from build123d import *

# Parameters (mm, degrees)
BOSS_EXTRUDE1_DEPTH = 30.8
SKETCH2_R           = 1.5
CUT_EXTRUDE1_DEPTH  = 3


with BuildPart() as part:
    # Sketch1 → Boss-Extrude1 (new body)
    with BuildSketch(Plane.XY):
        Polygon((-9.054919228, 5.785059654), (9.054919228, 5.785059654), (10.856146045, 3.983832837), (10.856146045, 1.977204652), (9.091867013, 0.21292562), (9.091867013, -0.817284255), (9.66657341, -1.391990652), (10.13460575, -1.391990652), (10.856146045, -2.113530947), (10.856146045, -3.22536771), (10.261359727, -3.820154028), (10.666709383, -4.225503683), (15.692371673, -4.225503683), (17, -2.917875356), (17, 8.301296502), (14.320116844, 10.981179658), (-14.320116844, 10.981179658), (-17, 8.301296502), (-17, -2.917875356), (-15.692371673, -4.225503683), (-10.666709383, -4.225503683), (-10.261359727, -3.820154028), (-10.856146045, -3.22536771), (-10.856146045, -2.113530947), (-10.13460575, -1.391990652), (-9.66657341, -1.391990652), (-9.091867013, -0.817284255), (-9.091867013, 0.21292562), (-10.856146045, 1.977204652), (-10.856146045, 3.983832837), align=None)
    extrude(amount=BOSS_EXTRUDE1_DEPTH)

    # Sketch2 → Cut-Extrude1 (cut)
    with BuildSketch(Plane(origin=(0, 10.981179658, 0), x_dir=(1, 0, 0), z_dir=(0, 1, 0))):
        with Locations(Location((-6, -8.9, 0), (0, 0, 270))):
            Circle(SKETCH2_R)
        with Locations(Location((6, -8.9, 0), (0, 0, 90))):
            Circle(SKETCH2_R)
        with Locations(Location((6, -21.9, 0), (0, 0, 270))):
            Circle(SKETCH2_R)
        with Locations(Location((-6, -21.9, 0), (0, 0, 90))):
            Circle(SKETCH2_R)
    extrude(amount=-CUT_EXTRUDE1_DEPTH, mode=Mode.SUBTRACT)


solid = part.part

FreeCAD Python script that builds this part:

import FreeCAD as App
import Part
import Sketcher

V = App.Vector

doc = App.newDocument("Part")
body = doc.addObject("PartDesign::Body", "Body")

# Sketch on XY plane
sketch1 = body.newObject("Sketcher::SketchObject", "Sketch")
sketch1.AttachmentSupport = (doc.getObject("XY_Plane"), [""])
sketch1.MapMode = "FlatFace"
sketch1.addGeometry([
    Part.LineSegment(V(-9.054919, 5.78506, 0), V(9.054919, 5.78506, 0)),  # 0
    Part.LineSegment(V(9.054919, 5.78506, 0), V(10.856146, 3.983833, 0)),  # 1
    Part.LineSegment(V(10.856146, 3.983833, 0), V(10.856146, 1.977205, 0)),  # 2
    Part.LineSegment(V(10.856146, 1.977205, 0), V(9.091867, 0.212926, 0)),  # 3
    Part.LineSegment(V(9.091867, 0.212926, 0), V(9.091867, -0.817284, 0)),  # 4
    Part.LineSegment(V(9.091867, -0.817284, 0), V(9.666573, -1.391991, 0)),  # 5
    Part.LineSegment(V(9.666573, -1.391991, 0), V(10.134606, -1.391991, 0)),  # 6
    Part.LineSegment(V(10.134606, -1.391991, 0), V(10.856146, -2.113531, 0)),  # 7
    Part.LineSegment(V(10.856146, -2.113531, 0), V(10.856146, -3.225368, 0)),  # 8
    Part.LineSegment(V(10.856146, -3.225368, 0), V(10.26136, -3.820154, 0)),  # 9
    Part.LineSegment(V(10.26136, -3.820154, 0), V(10.666709, -4.225504, 0)),  # 10
    Part.LineSegment(V(10.666709, -4.225504, 0), V(15.692372, -4.225504, 0)),  # 11
    Part.LineSegment(V(15.692372, -4.225504, 0), V(17, -2.917875, 0)),  # 12
    Part.LineSegment(V(17, -2.917875, 0), V(17, 8.301297, 0)),  # 13
    Part.LineSegment(V(17, 8.301297, 0), V(14.320117, 10.98118, 0)),  # 14
    Part.LineSegment(V(14.320117, 10.98118, 0), V(-14.320117, 10.98118, 0)),  # 15
    Part.LineSegment(V(-14.320117, 10.98118, 0), V(-17, 8.301297, 0)),  # 16
    Part.LineSegment(V(-17, 8.301297, 0), V(-17, -2.917875, 0)),  # 17
    Part.LineSegment(V(-17, -2.917875, 0), V(-15.692372, -4.225504, 0)),  # 18
    Part.LineSegment(V(-15.692372, -4.225504, 0), V(-10.666709, -4.225504, 0)),  # 19
    Part.LineSegment(V(-10.666709, -4.225504, 0), V(-10.26136, -3.820154, 0)),  # 20
    Part.LineSegment(V(-10.26136, -3.820154, 0), V(-10.856146, -3.225368, 0)),  # 21
    Part.LineSegment(V(-10.856146, -3.225368, 0), V(-10.856146, -2.113531, 0)),  # 22
    Part.LineSegment(V(-10.856146, -2.113531, 0), V(-10.134606, -1.391991, 0)),  # 23
    Part.LineSegment(V(-10.134606, -1.391991, 0), V(-9.666573, -1.391991, 0)),  # 24
    Part.LineSegment(V(-9.666573, -1.391991, 0), V(-9.091867, -0.817284, 0)),  # 25
    Part.LineSegment(V(-9.091867, -0.817284, 0), V(-9.091867, 0.212926, 0)),  # 26
    Part.LineSegment(V(-9.091867, 0.212926, 0), V(-10.856146, 1.977205, 0)),  # 27
    Part.LineSegment(V(-10.856146, 1.977205, 0), V(-10.856146, 3.983833, 0)),  # 28
    Part.LineSegment(V(-10.856146, 3.983833, 0), V(-9.054919, 5.78506, 0)),  # 29
], False)
sketch1.addConstraint([
    Sketcher.Constraint("Coincident", 0, 2, 1, 1),
    Sketcher.Constraint("Coincident", 1, 2, 2, 1),
    Sketcher.Constraint("Coincident", 2, 2, 3, 1),
    Sketcher.Constraint("Coincident", 3, 2, 4, 1),
    Sketcher.Constraint("Coincident", 4, 2, 5, 1),
    Sketcher.Constraint("Coincident", 5, 2, 6, 1),
    Sketcher.Constraint("Coincident", 6, 2, 7, 1),
    Sketcher.Constraint("Coincident", 7, 2, 8, 1),
    Sketcher.Constraint("Coincident", 8, 2, 9, 1),
    Sketcher.Constraint("Coincident", 9, 2, 10, 1),
    Sketcher.Constraint("Coincident", 10, 2, 11, 1),
    Sketcher.Constraint("Coincident", 11, 2, 12, 1),
    Sketcher.Constraint("Coincident", 12, 2, 13, 1),
    Sketcher.Constraint("Coincident", 13, 2, 14, 1),
    Sketcher.Constraint("Coincident", 14, 2, 15, 1),
    Sketcher.Constraint("Coincident", 15, 2, 16, 1),
    Sketcher.Constraint("Coincident", 16, 2, 17, 1),
    Sketcher.Constraint("Coincident", 17, 2, 18, 1),
    Sketcher.Constraint("Coincident", 18, 2, 19, 1),
    Sketcher.Constraint("Coincident", 19, 2, 20, 1),
    Sketcher.Constraint("Coincident", 20, 2, 21, 1),
    Sketcher.Constraint("Coincident", 21, 2, 22, 1),
    Sketcher.Constraint("Coincident", 22, 2, 23, 1),
    Sketcher.Constraint("Coincident", 23, 2, 24, 1),
    Sketcher.Constraint("Coincident", 24, 2, 25, 1),
    Sketcher.Constraint("Coincident", 25, 2, 26, 1),
    Sketcher.Constraint("Coincident", 26, 2, 27, 1),
    Sketcher.Constraint("Coincident", 27, 2, 28, 1),
    Sketcher.Constraint("Coincident", 28, 2, 29, 1),
    Sketcher.Constraint("Coincident", 29, 2, 0, 1),
    Sketcher.Constraint("Horizontal", 0),
    Sketcher.Constraint("Vertical", 2),
    Sketcher.Constraint("Vertical", 4),
    Sketcher.Constraint("Horizontal", 6),
    Sketcher.Constraint("Vertical", 8),
    Sketcher.Constraint("Horizontal", 11),
    Sketcher.Constraint("Vertical", 13),
    Sketcher.Constraint("Horizontal", 15),
    Sketcher.Constraint("Vertical", 17),
    Sketcher.Constraint("Horizontal", 19),
    Sketcher.Constraint("Vertical", 22),
    Sketcher.Constraint("Horizontal", 24),
    Sketcher.Constraint("Vertical", 26),
    Sketcher.Constraint("Vertical", 28),
    Sketcher.Constraint("Symmetric", 13, 2, 16, 2, -2),
    Sketcher.Constraint("Symmetric", 11, 2, 18, 2, -2),
    Sketcher.Constraint("Symmetric", 9, 2, 20, 2, -2),
    Sketcher.Constraint("Symmetric", 8, 2, 21, 2, -2),
    Sketcher.Constraint("Symmetric", 6, 2, 23, 2, -2),
    Sketcher.Constraint("Symmetric", 4, 2, 25, 2, -2),
    Sketcher.Constraint("Symmetric", 2, 2, 27, 2, -2),
    Sketcher.Constraint("Perpendicular", 1, 3),
    Sketcher.Constraint("Perpendicular", 3, 5),
    Sketcher.Constraint("Parallel", 5, 7),
    Sketcher.Constraint("Perpendicular", 7, 9),
    Sketcher.Constraint("Perpendicular", 9, 10),
    Sketcher.Constraint("Perpendicular", 10, 12),
    Sketcher.Constraint("Perpendicular", 12, 14),
    Sketcher.Constraint("Perpendicular", 14, 16),
    Sketcher.Constraint("Perpendicular", 16, 18),
    Sketcher.Constraint("Perpendicular", 18, 20),
    Sketcher.Constraint("Perpendicular", 20, 21),
    Sketcher.Constraint("Perpendicular", 21, 23),
    Sketcher.Constraint("Parallel", 23, 25),
    Sketcher.Constraint("Perpendicular", 25, 27),
    Sketcher.Constraint("Perpendicular", 27, 29),
    Sketcher.Constraint("Horizontal", 1, 2, 28, 2),
    Sketcher.Constraint("Vertical", 2, 2, 7, 2),
    Sketcher.Constraint("DistanceX", -1, 1, 12, 2, 17.0),
    Sketcher.Constraint("DistanceX", 0, 1, 0, 2, 18.109838),
    Sketcher.Constraint("DistanceY", 2, 2, 2, 1, 2.006628),
    Sketcher.Constraint("DistanceY", 4, 2, 4, 1, 1.03021),
    Sketcher.Constraint("DistanceY", 13, 1, 13, 2, 11.219172),
    Sketcher.Constraint("DistanceY", 17, 2, 3, 2, 3.130801),
    Sketcher.Constraint("DistanceY", 18, 2, 16, 2, 12.5268),
    Sketcher.Constraint("Distance", 1, 2.547319),
    Sketcher.Constraint("Distance", 10, 0.573251),
    Sketcher.Constraint("DistanceX", 6, 1, 6, 2, 0.468032),
    Sketcher.Constraint("DistanceX", 11, 1, 11, 2, 5.025662),
    Sketcher.Constraint("DistanceX", 15, 2, 15, 1, 28.640234),
    Sketcher.Constraint("DistanceY", 8, 2, 8, 1, 1.111837),
    Sketcher.Constraint("DistanceY", -1, 1, 0, 2, 5.78506),
    Sketcher.Constraint("DistanceY", 5, 2, -1, 1, 1.391991),
])
pad1 = body.newObject("PartDesign::Pad", "Pad")
pad1.Profile = sketch1
pad1.Length = 30.8

# Sketch on XZ plane
sketch2 = body.newObject("Sketcher::SketchObject", "Sketch001")
sketch2.AttachmentSupport = (doc.getObject("XZ_Plane"), [""])
sketch2.MapMode = "FlatFace"
sketch2.AttachmentOffset = App.Placement(V(0, 0, -10.98118), App.Rotation())
sketch2.addGeometry([
    Part.Circle(V(-6, 8.9, 0), V(0, 0, 1), 1.5),
    Part.Circle(V(6, 8.9, 0), V(0, 0, 1), 1.5),
    Part.Circle(V(6, 21.9, 0), V(0, 0, 1), 1.5),
    Part.Circle(V(-6, 21.9, 0), V(0, 0, 1), 1.5),
], False)
sketch2.addConstraint([
    Sketcher.Constraint("Equal", 0, 1),
    Sketcher.Constraint("Equal", 1, 2),
    Sketcher.Constraint("Equal", 2, 3),
    Sketcher.Constraint("Symmetric", 0, 3, 1, 3, -2),
    Sketcher.Constraint("Symmetric", 2, 3, 3, 3, -2),
    Sketcher.Constraint("Vertical", 1, 3, 2, 3),
    Sketcher.Constraint("Diameter", 0, 3.0),
    Sketcher.Constraint("DistanceX", 0, 3, -1, 1, 6.0),
    Sketcher.Constraint("DistanceY", 1, 3, 2, 3, 13.0),
    Sketcher.Constraint("DistanceY", -1, 1, 0, 3, 8.9),
])
pocket1 = body.newObject("PartDesign::Pocket", "Pocket")
pocket1.Profile = sketch2
pocket1.Length = 3
pocket1.Reversed = True

doc.recompute()
